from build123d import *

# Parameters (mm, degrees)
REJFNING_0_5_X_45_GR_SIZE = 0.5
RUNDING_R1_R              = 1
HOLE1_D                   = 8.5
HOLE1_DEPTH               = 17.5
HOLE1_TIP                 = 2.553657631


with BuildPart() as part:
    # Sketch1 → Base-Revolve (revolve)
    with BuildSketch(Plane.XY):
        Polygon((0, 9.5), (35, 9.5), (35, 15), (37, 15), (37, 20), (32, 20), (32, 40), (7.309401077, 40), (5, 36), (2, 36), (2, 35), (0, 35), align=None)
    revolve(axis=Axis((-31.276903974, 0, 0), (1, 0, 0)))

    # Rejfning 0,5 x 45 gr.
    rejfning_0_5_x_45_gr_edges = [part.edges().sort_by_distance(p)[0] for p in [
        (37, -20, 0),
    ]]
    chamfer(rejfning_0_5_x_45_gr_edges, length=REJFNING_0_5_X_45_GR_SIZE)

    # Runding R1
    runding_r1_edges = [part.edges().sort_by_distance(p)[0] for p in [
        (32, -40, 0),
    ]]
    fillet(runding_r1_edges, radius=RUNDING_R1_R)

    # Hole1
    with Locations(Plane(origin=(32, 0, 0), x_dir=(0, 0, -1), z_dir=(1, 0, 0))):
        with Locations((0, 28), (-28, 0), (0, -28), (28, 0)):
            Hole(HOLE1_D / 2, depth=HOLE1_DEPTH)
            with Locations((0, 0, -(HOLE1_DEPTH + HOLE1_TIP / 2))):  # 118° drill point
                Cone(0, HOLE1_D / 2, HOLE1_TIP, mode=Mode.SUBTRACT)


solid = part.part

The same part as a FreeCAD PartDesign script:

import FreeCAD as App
import Part
import Sketcher
Q = App.Units.Quantity


def edges_at(feature, points):
    """Names of the edges that pass closest to the given points."""
    edges = feature.Shape.Edges
    near = lambda p: min(range(len(edges)), key=lambda i: edges[i].distToShape(Part.Vertex(*p))[0])
    return sorted({f"Edge{near(p) + 1}" for p in points})

doc = App.newDocument("Part")
body = doc.addObject("PartDesign::Body", "Body")

# Sketch on XY plane
sketch1 = body.newObject("Sketcher::SketchObject", "Sketch")
sketch1.AttachmentSupport = (doc.getObject("XY_Plane"), [""])
sketch1.MapMode = "FlatFace"
sketch1.addGeometry([
    Part.LineSegment(App.Vector(0, 9.5, 0), App.Vector(35, 9.5, 0)),  # 0
    Part.LineSegment(App.Vector(35, 9.5, 0), App.Vector(35, 15, 0)),  # 1
    Part.LineSegment(App.Vector(35, 15, 0), App.Vector(37, 15, 0)),  # 2
    Part.LineSegment(App.Vector(37, 15, 0), App.Vector(37, 20, 0)),  # 3
    Part.LineSegment(App.Vector(37, 20, 0), App.Vector(32, 20, 0)),  # 4
    Part.LineSegment(App.Vector(32, 20, 0), App.Vector(32, 40, 0)),  # 5
    Part.LineSegment(App.Vector(32, 40, 0), App.Vector(7.3, 40, 0)),  # 6
    Part.LineSegment(App.Vector(7.3, 40, 0), App.Vector(5, 36, 0)),  # 7
    Part.LineSegment(App.Vector(5, 36, 0), App.Vector(2, 36, 0)),  # 8
    Part.LineSegment(App.Vector(2, 36, 0), App.Vector(2, 35, 0)),  # 9
    Part.LineSegment(App.Vector(2, 35, 0), App.Vector(0, 35, 0)),  # 10
    Part.LineSegment(App.Vector(0, 35, 0), App.Vector(0, 9.5, 0)),  # 11
], False)
sketch1.addConstraint([
    Sketcher.Constraint("Coincident", 0, 2, 1, 1),
    Sketcher.Constraint("Coincident", 1, 2, 2, 1),
    Sketcher.Constraint("Coincident", 2, 2, 3, 1),
    Sketcher.Constraint("Coincident", 3, 2, 4, 1),
    Sketcher.Constraint("Coincident", 4, 2, 5, 1),
    Sketcher.Constraint("Coincident", 5, 2, 6, 1),
    Sketcher.Constraint("Coincident", 6, 2, 7, 1),
    Sketcher.Constraint("Coincident", 7, 2, 8, 1),
    Sketcher.Constraint("Coincident", 8, 2, 9, 1),
    Sketcher.Constraint("Coincident", 9, 2, 10, 1),
    Sketcher.Constraint("Coincident", 10, 2, 11, 1),
    Sketcher.Constraint("Coincident", 11, 2, 0, 1),
    Sketcher.Constraint("Horizontal", 0),
    Sketcher.Constraint("Vertical", 1),
    Sketcher.Constraint("Horizontal", 2),
    Sketcher.Constraint("Vertical", 3),
    Sketcher.Constraint("Horizontal", 4),
    Sketcher.Constraint("Vertical", 5),
    Sketcher.Constraint("Horizontal", 6),
    Sketcher.Constraint("Horizontal", 8),
    Sketcher.Constraint("Vertical", 9),
    Sketcher.Constraint("Horizontal", 10),
    Sketcher.Constraint("Vertical", 11),
    Sketcher.Constraint("PointOnObject", 10, 2, -2),
    Sketcher.Constraint("Equal", 2, 10),
    Sketcher.Constraint("Equal", 4, 3),
    Sketcher.Constraint("DistanceX", 0, 1, 0, 2, Q("35 mm")),
    Sketcher.Constraint("DistanceX", 2, 1, 2, 2, Q("2 mm")),
    Sketcher.Constraint("DistanceX", 4, 2, 4, 1, Q("5 mm")),
    Sketcher.Constraint("DistanceX", 8, 2, 8, 1, Q("3 mm")),
    Sketcher.Constraint("DistanceY", 5, 1, 5, 2, Q("20 mm")),
    Sketcher.Constraint("DistanceY", 9, 2, 9, 1, Q("1 mm")),
    Sketcher.Constraint("Angle", 7, Q("-120 deg")),
    Sketcher.Constraint("DistanceY", 1, 1, 1, 2, Q("5.5 mm")),
    Sketcher.Constraint("DistanceY", 11, 2, 11, 1, Q("25.5 mm")),
    Sketcher.Constraint("DistanceY", -1, 1, 1, 2, Q("15 mm")),
])
revolution = body.newObject("PartDesign::Revolution", "Revolution")
revolution.Profile = sketch1
revolution.ReferenceAxis = (sketch1, ["H_Axis"])
revolution.Angle = 360
doc.recompute()

chamfer = body.newObject("PartDesign::Chamfer", "Chamfer")
chamfer.Base = (revolution, edges_at(revolution, [(37, -20, 0)]))
chamfer.Size = 0.5
doc.recompute()

fillet = body.newObject("PartDesign::Fillet", "Fillet")
fillet.Base = (chamfer, edges_at(chamfer, [(32, -40, 0)]))
fillet.Radius = 1

# Sketch on YZ plane
sketch2 = body.newObject("Sketcher::SketchObject", "Sketch001")
sketch2.AttachmentSupport = (doc.getObject("YZ_Plane"), [""])
sketch2.MapMode = "FlatFace"
sketch2.AttachmentOffset = App.Placement(App.Vector(0, 0, 32), App.Rotation())
sketch2.addGeometry([
    Part.Circle(App.Vector(28, 0, 0), App.Vector(0, 0, 1), 4.2),
    Part.Circle(App.Vector(0, 28, 0), App.Vector(0, 0, 1), 4.2),
    Part.Circle(App.Vector(-28, 0, 0), App.Vector(0, 0, 1), 4.2),
    Part.Circle(App.Vector(0, -28, 0), App.Vector(0, 0, 1), 4.2),
], False)
sketch2.addConstraint([
    Sketcher.Constraint("Equal", 0, 1),
    Sketcher.Constraint("Equal", 1, 2),
    Sketcher.Constraint("Equal", 2, 3),
    Sketcher.Constraint("Symmetric", 0, 3, 2, 3, -1, 1),
    Sketcher.Constraint("Symmetric", 1, 3, 3, 3, -1, 1),
    Sketcher.Constraint("PointOnObject", 0, 3, -1),
    Sketcher.Constraint("PointOnObject", 1, 3, -2),
    Sketcher.Constraint("Diameter", 0, Q("8.5 mm")),
    Sketcher.Constraint("DistanceX", -1, 1, 0, 3, Q("28 mm")),
    Sketcher.Constraint("DistanceY", -1, 1, 1, 3, Q("28 mm")),
])
doc.recompute()
hole = body.newObject("PartDesign::Hole", "Hole")
hole.Profile = sketch2
hole.ThreadType = "None"
hole.Diameter = 8.5
hole.DepthType = "Dimension"
hole.Depth = 17.5
hole.DrillPoint = "Angled"
hole.DrillPointAngle = 118

doc.recompute()
